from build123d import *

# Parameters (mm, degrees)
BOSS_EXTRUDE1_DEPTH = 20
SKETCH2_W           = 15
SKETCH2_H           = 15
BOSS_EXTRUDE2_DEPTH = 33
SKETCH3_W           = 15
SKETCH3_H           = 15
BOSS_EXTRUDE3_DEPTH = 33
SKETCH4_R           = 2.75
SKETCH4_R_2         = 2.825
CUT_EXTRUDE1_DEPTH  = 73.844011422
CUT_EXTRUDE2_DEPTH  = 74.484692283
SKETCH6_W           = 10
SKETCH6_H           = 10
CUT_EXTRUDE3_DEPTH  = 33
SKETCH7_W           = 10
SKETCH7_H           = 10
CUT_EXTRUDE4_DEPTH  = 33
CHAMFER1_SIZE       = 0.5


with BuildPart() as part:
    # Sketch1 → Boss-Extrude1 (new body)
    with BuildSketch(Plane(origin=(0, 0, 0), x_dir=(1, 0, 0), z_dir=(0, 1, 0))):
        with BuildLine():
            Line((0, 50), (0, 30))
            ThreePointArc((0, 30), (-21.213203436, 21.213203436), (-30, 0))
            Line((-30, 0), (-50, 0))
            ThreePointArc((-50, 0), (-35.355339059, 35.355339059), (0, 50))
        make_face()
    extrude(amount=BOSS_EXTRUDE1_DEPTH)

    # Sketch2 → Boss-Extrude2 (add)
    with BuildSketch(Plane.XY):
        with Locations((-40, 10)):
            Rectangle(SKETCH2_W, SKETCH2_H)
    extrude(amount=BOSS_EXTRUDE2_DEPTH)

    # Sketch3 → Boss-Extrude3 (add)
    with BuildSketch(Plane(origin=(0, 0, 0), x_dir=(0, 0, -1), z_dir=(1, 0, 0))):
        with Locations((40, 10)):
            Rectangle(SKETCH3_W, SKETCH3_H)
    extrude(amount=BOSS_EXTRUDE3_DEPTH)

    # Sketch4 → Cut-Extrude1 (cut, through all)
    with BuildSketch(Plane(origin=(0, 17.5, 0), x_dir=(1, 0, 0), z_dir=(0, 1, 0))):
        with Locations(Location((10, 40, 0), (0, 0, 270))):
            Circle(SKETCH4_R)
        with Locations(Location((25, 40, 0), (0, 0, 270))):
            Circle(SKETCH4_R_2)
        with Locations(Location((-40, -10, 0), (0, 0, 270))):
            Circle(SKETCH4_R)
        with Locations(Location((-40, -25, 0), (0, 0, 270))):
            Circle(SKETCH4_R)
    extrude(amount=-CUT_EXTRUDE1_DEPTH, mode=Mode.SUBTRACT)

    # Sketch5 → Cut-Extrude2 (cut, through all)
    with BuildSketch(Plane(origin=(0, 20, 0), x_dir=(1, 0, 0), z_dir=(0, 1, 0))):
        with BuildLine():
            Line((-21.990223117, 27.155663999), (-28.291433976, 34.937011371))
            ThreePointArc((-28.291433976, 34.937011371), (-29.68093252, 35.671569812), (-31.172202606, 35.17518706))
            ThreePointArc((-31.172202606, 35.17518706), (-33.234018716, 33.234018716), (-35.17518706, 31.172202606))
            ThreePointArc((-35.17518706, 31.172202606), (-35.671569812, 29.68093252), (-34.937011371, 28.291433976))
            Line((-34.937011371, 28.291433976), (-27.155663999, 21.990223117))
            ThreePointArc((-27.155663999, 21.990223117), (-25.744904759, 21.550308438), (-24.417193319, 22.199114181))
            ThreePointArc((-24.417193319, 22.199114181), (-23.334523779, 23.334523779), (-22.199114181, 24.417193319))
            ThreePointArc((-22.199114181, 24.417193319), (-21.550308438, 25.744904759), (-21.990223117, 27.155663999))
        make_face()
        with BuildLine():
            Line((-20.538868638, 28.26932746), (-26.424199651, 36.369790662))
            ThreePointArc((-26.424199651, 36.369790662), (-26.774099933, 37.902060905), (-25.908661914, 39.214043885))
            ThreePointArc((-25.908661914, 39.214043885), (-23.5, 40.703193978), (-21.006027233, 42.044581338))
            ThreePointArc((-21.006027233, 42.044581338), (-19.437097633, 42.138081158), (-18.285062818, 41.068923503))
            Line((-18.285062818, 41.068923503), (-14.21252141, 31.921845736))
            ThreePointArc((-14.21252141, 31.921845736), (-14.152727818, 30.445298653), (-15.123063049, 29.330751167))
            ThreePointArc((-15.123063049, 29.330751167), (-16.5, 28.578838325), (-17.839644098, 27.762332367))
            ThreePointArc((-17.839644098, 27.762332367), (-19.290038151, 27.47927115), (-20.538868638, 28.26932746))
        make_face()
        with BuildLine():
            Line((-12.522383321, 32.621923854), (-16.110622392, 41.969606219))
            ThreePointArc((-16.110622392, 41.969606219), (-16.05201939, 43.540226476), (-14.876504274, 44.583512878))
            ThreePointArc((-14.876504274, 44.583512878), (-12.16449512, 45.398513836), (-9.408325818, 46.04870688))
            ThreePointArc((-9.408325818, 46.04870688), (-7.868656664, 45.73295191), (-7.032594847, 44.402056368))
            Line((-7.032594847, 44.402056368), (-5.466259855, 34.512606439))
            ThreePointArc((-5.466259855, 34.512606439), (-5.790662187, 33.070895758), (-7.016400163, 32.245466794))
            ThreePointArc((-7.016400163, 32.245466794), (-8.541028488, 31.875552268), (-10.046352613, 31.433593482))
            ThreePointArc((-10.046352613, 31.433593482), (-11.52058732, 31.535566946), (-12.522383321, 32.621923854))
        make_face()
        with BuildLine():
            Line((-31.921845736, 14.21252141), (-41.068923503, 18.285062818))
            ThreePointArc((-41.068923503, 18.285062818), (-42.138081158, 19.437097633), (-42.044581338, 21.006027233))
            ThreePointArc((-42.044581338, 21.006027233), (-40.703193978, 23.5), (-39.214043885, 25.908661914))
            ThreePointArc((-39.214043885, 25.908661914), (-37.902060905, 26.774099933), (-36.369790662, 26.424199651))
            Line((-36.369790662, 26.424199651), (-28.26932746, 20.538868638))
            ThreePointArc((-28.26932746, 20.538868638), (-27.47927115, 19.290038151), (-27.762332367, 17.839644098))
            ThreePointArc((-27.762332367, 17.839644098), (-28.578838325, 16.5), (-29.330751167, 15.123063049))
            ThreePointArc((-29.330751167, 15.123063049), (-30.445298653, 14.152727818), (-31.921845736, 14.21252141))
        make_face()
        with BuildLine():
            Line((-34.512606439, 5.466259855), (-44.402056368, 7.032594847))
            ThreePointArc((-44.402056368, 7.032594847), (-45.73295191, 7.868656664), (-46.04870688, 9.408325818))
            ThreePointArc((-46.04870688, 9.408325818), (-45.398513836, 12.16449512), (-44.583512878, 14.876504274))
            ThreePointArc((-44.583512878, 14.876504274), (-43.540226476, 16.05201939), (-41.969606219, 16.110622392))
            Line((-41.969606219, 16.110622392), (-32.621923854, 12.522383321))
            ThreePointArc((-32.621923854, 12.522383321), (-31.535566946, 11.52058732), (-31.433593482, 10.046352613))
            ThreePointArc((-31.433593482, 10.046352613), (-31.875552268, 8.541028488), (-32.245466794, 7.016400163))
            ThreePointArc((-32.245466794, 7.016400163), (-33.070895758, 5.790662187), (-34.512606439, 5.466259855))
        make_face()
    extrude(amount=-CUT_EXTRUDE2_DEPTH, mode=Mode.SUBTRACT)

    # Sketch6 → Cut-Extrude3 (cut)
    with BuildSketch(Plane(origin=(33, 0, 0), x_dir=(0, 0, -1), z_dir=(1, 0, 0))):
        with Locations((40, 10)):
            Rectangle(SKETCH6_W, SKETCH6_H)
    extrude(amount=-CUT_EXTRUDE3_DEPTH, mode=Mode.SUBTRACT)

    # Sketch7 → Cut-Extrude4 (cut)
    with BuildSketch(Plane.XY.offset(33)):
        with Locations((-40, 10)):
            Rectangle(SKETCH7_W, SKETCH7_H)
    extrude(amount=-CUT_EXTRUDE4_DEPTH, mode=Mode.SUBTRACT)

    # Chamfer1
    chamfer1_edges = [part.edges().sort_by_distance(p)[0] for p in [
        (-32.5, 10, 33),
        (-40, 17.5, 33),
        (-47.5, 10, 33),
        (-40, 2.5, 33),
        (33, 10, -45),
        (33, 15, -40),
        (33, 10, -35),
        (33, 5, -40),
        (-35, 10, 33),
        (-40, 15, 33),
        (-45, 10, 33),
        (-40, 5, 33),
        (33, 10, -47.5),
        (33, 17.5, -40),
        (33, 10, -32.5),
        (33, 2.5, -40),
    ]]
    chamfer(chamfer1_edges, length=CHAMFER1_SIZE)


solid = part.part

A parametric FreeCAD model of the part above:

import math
import FreeCAD as App
import Part
import Sketcher
Q = App.Units.Quantity


def edges_at(feature, points):
    """Names of the edges that pass closest to the given points."""
    edges = feature.Shape.Edges
    near = lambda p: min(range(len(edges)), key=lambda i: edges[i].distToShape(Part.Vertex(*p))[0])
    return sorted({f"Edge{near(p) + 1}" for p in points})


def add_polygon(sketch, points):
    """Adds a closed chain of lines whose ends are joined by coincident constraints."""
    first, n = sketch.GeometryCount, len(points)
    for a, b in zip(points, points[1:] + points[:1]):
        sketch.addGeometry(Part.LineSegment(App.Vector(*a, 0), App.Vector(*b, 0)), False)
    for i in range(n):
        sketch.addConstraint(Sketcher.Constraint("Coincident", first + i, 2, first + (i + 1) % n, 1))

doc = App.newDocument("Part")
body = doc.addObject("PartDesign::Body", "Body")

# Sketch on XZ plane
sketch1 = doc.addObject("Sketcher::SketchObject", "Sketch")
body.addObject(sketch1)
sketch1.AttachmentSupport = (doc.XZ_Plane, [""])
sketch1.MapMode = "FlatFace"
sketch1.addGeometry(Part.LineSegment(App.Vector(0, -30, 0), App.Vector(0, -50, 0)), False)
sketch1.addGeometry(Part.ArcOfCircle(Part.Circle(App.Vector(0, 0, 0), App.Vector(0, 0, 1), 50), math.radians(-180), math.radians(-90)), False)
sketch1.addGeometry(Part.LineSegment(App.Vector(-50, 0, 0), App.Vector(-30, 0, 0)), False)
sketch1.addGeometry(Part.ArcOfCircle(Part.Circle(App.Vector(0, 0, 0), App.Vector(0, 0, 1), 30), math.radians(180), math.radians(270)), False)
sketch1.addConstraint(Sketcher.Constraint("Coincident", 0, 2, 1, 2))
sketch1.addConstraint(Sketcher.Constraint("Coincident", 1, 1, 2, 1))
sketch1.addConstraint(Sketcher.Constraint("Coincident", 2, 2, 3, 1))
sketch1.addConstraint(Sketcher.Constraint("Coincident", 3, 2, 0, 1))
sketch1.addConstraint(Sketcher.Constraint("Vertical", 0))
sketch1.addConstraint(Sketcher.Constraint("Horizontal", 2))
sketch1.addConstraint(Sketcher.Constraint("Coincident", 1, 3, -1, 1))
sketch1.addConstraint(Sketcher.Constraint("Coincident", 3, 3, -1, 1))
sketch1.addConstraint(Sketcher.Constraint("PointOnObject", 0, 2, -2))
sketch1.addConstraint(Sketcher.Constraint("PointOnObject", 1, 1, -1))
sketch1.addConstraint(Sketcher.Constraint("Radius", 1, Q("50 mm")))
sketch1.addConstraint(Sketcher.Constraint("Radius", 3, Q("30 mm")))
pad1 = doc.addObject("PartDesign::Pad", "Pad")
body.addObject(pad1)
pad1.Profile = sketch1
pad1.Length = 20
pad1.Reversed = True

# Sketch on XY plane
sketch2 = doc.addObject("Sketcher::SketchObject", "Sketch001")
body.addObject(sketch2)
sketch2.AttachmentSupport = (doc.XY_Plane, [""])
sketch2.MapMode = "FlatFace"
add_polygon(sketch2, [(-48, 18), (-48, 2), (-32, 2), (-32, 18)])  # lines 0-3
sketch2.addConstraint(Sketcher.Constraint("Vertical", 0))
sketch2.addConstraint(Sketcher.Constraint("Horizontal", 1))
sketch2.addConstraint(Sketcher.Constraint("Vertical", 2))
sketch2.addConstraint(Sketcher.Constraint("Horizontal", 3))
sketch2.addConstraint(Sketcher.Constraint("Equal", 3, 0))
sketch2.addConstraint(Sketcher.Constraint("DistanceX", 1, 1, 1, 2, Q("15 mm")))
sketch2.addConstraint(Sketcher.Constraint("DistanceX", 0, 2, -1, 1, Q("47.5 mm")))
sketch2.addConstraint(Sketcher.Constraint("DistanceY", -1, 1, 0, 2, Q("2.5 mm")))
pad2 = doc.addObject("PartDesign::Pad", "Pad001")
body.addObject(pad2)
pad2.Profile = sketch2
pad2.Length = 33

# Sketch on YZ plane
sketch3 = doc.addObject("Sketcher::SketchObject", "Sketch002")
body.addObject(sketch3)
sketch3.AttachmentSupport = (doc.YZ_Plane, [""])
sketch3.MapMode = "FlatFace"
add_polygon(sketch3, [(18, -32), (2, -32), (2, -48), (18, -48)])  # lines 0-3
sketch3.addConstraint(Sketcher.Constraint("Horizontal", 0))
sketch3.addConstraint(Sketcher.Constraint("Vertical", 1))
sketch3.addConstraint(Sketcher.Constraint("Horizontal", 2))
sketch3.addConstraint(Sketcher.Constraint("Vertical", 3))
sketch3.addConstraint(Sketcher.Constraint("Equal", 2, 1))
sketch3.addConstraint(Sketcher.Constraint("DistanceX", 0, 2, 0, 1, Q("15 mm")))
sketch3.addConstraint(Sketcher.Constraint("DistanceX", -1, 1, 0, 2, Q("2.5 mm")))
sketch3.addConstraint(Sketcher.Constraint("DistanceY", 0, 2, -1, 1, Q("32.5 mm")))
pad3 = doc.addObject("PartDesign::Pad", "Pad002")
body.addObject(pad3)
pad3.Profile = sketch3
pad3.Length = 33

# Sketch on XZ plane
sketch4 = doc.addObject("Sketcher::SketchObject", "Sketch003")
body.addObject(sketch4)
sketch4.AttachmentSupport = (doc.XZ_Plane, [""])
sketch4.MapMode = "FlatFace"
sketch4.AttachmentOffset = App.Placement(App.Vector(0, 0, -17.5), App.Rotation())
sketch4.addGeometry(Part.Circle(App.Vector(10, -40, 0), App.Vector(0, 0, 1), 2.8), False)
sketch4.addGeometry(Part.Circle(App.Vector(25, -40, 0), App.Vector(0, 0, 1), 2.8), False)
sketch4.addGeometry(Part.Circle(App.Vector(-40, 10, 0), App.Vector(0, 0, 1), 2.8), False)
sketch4.addGeometry(Part.Circle(App.Vector(-40, 25, 0), App.Vector(0, 0, 1), 2.8), False)
sketch4.addConstraint(Sketcher.Constraint("Equal", 0, 2))
sketch4.addConstraint(Sketcher.Constraint("Equal", 2, 3))
sketch4.addConstraint(Sketcher.Constraint("Horizontal", 0, 3, 1, 3))
sketch4.addConstraint(Sketcher.Constraint("Vertical", 2, 3, 3, 3))
sketch4.addConstraint(Sketcher.Constraint("Diameter", 0, Q("5.5 mm")))
sketch4.addConstraint(Sketcher.Constraint("Diameter", 1, Q("5.65 mm")))
sketch4.addConstraint(Sketcher.Constraint("DistanceX", -1, 1, 0, 3, Q("10 mm")))
sketch4.addConstraint(Sketcher.Constraint("DistanceY", 0, 3, -1, 1, Q("40 mm")))
sketch4.addConstraint(Sketcher.Constraint("DistanceX", -1, 1, 1, 3, Q("25 mm")))
sketch4.addConstraint(Sketcher.Constraint("DistanceX", 2, 3, -1, 1, Q("40 mm")))
sketch4.addConstraint(Sketcher.Constraint("DistanceY", -1, 1, 2, 3, Q("10 mm")))
sketch4.addConstraint(Sketcher.Constraint("DistanceY", -1, 1, 3, 3, Q("25 mm")))
pocket1 = doc.addObject("PartDesign::Pocket", "Pocket")
body.addObject(pocket1)
pocket1.Profile = sketch4
pocket1.Type = "ThroughAll"
pocket1.Reversed = True

# Sketch on XZ plane
sketch5 = doc.addObject("Sketcher::SketchObject", "Sketch004")
body.addObject(sketch5)
sketch5.AttachmentSupport = (doc.XZ_Plane, [""])
sketch5.MapMode = "FlatFace"
sketch5.AttachmentOffset = App.Placement(App.Vector(0, 0, -20), App.Rotation())
sketch5.addGeometry(Part.LineSegment(App.Vector(-22, -27.2, 0), App.Vector(-28.3, -34.9, 0)), False)
sketch5.addGeometry(Part.ArcOfCircle(Part.Circle(App.Vector(-29.8, -33.7, 0), App.Vector(0, 0, 1), 2), math.radians(-132), math.radians(-39)), False)
sketch5.addGeometry(Part.ArcOfCircle(Part.Circle(App.Vector(0, 0, 0), App.Vector(0, 0, 1), 47), math.radians(-138.45), math.radians(-131.55)), False)
sketch5.addGeometry(Part.ArcOfCircle(Part.Circle(App.Vector(-33.7, -29.8, 0), App.Vector(0, 0, 1), 2), math.radians(129), math.radians(222)), False)
sketch5.addGeometry(Part.LineSegment(App.Vector(-34.9, -28.3, 0), App.Vector(-27.2, -22, 0)), False)
sketch5.addGeometry(Part.ArcOfCircle(Part.Circle(App.Vector(-25.9, -23.5, 0), App.Vector(0, 0, 1), 2), math.radians(42), math.radians(129)), False)
sketch5.addGeometry(Part.ArcOfCircle(Part.Circle(App.Vector(0, 0, 0), App.Vector(0, 0, 1), 33), math.radians(-137.72), math.radians(-132.28)), False)
sketch5.addGeometry(Part.ArcOfCircle(Part.Circle(App.Vector(-23.5, -25.9, 0), App.Vector(0, 0, 1), 2), math.radians(-39), math.radians(48)), False)
sketch5.addGeometry(Part.LineSegment(App.Vector(-26.4, -36.4, 0), App.Vector(-20.5, -28.3, 0)), False)
sketch5.addGeometry(Part.ArcOfCircle(Part.Circle(App.Vector(-18.9, -29.4, 0), App.Vector(0, 0, 1), 2), math.radians(57), math.radians(144)), False)
sketch5.addGeometry(Part.ArcOfCircle(Part.Circle(App.Vector(0, 0, 0), App.Vector(0, 0, 1), 33), math.radians(-122.72), math.radians(-117.28)), False)
sketch5.addGeometry(Part.ArcOfCircle(Part.Circle(App.Vector(-16, -31.1, 0), App.Vector(0, 0, 1), 2), math.radians(-24), math.radians(63)), False)
sketch5.addGeometry(Part.LineSegment(App.Vector(-14.2, -31.9, 0), App.Vector(-18.3, -41.1, 0)), False)
sketch5.addGeometry(Part.ArcOfCircle(Part.Circle(App.Vector(-20.1, -40.3, 0), App.Vector(0, 0, 1), 2), math.radians(-117), math.radians(-24)), False)
sketch5.addGeometry(Part.ArcOfCircle(Part.Circle(App.Vector(0, 0, 0), App.Vector(0, 0, 1), 47), math.radians(-123.45), math.radians(-116.55)), False)
sketch5.addGeometry(Part.ArcOfCircle(Part.Circle(App.Vector(-24.8, -37.5, 0), App.Vector(0, 0, 1), 2), math.radians(144), math.radians(237)), False)
sketch5.addGeometry(Part.LineSegment(App.Vector(-16.1, -42, 0), App.Vector(-12.5, -32.6, 0)), False)
sketch5.addGeometry(Part.ArcOfCircle(Part.Circle(App.Vector(-10.7, -33.3, 0), App.Vector(0, 0, 1), 2), math.radians(72), math.radians(159)), False)
sketch5.addGeometry(Part.ArcOfCircle(Part.Circle(App.Vector(0, 0, 0), App.Vector(0, 0, 1), 33), math.radians(-107.72), math.radians(-102.28)), False)
sketch5.addGeometry(Part.ArcOfCircle(Part.Circle(App.Vector(-7.4, -34.2, 0), App.Vector(0, 0, 1), 2), math.radians(-9), math.radians(78)), False)
sketch5.addGeometry(Part.LineSegment(App.Vector(-5.5, -34.5, 0), App.Vector(-7, -44.4, 0)), False)
sketch5.addGeometry(Part.ArcOfCircle(Part.Circle(App.Vector(-9, -44.1, 0), App.Vector(0, 0, 1), 2), math.radians(-102), math.radians(-9)), False)
sketch5.addGeometry(Part.ArcOfCircle(Part.Circle(App.Vector(0, 0, 0), App.Vector(0, 0, 1), 47), math.radians(-108.45), math.radians(-101.55)), False)
sketch5.addGeometry(Part.ArcOfCircle(Part.Circle(App.Vector(-14.2, -42.7, 0), App.Vector(0, 0, 1), 2), math.radians(159), math.radians(252)), False)
sketch5.addGeometry(Part.LineSegment(App.Vector(-41.1, -18.3, 0), App.Vector(-31.9, -14.2, 0)), False)
sketch5.addGeometry(Part.ArcOfCircle(Part.Circle(App.Vector(-31.1, -16, 0), App.Vector(0, 0, 1), 2), math.radians(27), math.radians(114)), False)
sketch5.addGeometry(Part.ArcOfCircle(Part.Circle(App.Vector(0, 0, 0), App.Vector(0, 0, 1), 33), math.radians(-152.72), math.radians(-147.28)), False)
sketch5.addGeometry(Part.ArcOfCircle(Part.Circle(App.Vector(-29.4, -18.9, 0), App.Vector(0, 0, 1), 2), math.radians(-54), math.radians(33)), False)
sketch5.addGeometry(Part.LineSegment(App.Vector(-28.3, -20.5, 0), App.Vector(-36.4, -26.4, 0)), False)
sketch5.addGeometry(Part.ArcOfCircle(Part.Circle(App.Vector(-37.5, -24.8, 0), App.Vector(0, 0, 1), 2), math.radians(-147), math.radians(-54)), False)
sketch5.addGeometry(Part.ArcOfCircle(Part.Circle(App.Vector(0, 0, 0), App.Vector(0, 0, 1), 47), math.radians(-153.45), math.radians(-146.55)), False)
sketch5.addGeometry(Part.ArcOfCircle(Part.Circle(App.Vector(-40.3, -20.1, 0), App.Vector(0, 0, 1), 2), math.radians(114), math.radians(207)), False)
sketch5.addGeometry(Part.LineSegment(App.Vector(-44.4, -7, 0), App.Vector(-34.5, -5.5, 0)), False)
sketch5.addGeometry(Part.ArcOfCircle(Part.Circle(App.Vector(-34.2, -7.4, 0), App.Vector(0, 0, 1), 2), math.radians(12), math.radians(99)), False)
sketch5.addGeometry(Part.ArcOfCircle(Part.Circle(App.Vector(0, 0, 0), App.Vector(0, 0, 1), 33), math.radians(-167.72), math.radians(-162.28)), False)
sketch5.addGeometry(Part.ArcOfCircle(Part.Circle(App.Vector(-33.3, -10.7, 0), App.Vector(0, 0, 1), 2), math.radians(-69), math.radians(18)), False)
sketch5.addGeometry(Part.LineSegment(App.Vector(-32.6, -12.5, 0), App.Vector(-42, -16.1, 0)), False)
sketch5.addGeometry(Part.ArcOfCircle(Part.Circle(App.Vector(-42.7, -14.2, 0), App.Vector(0, 0, 1), 2), math.radians(-162), math.radians(-69)), False)
sketch5.addGeometry(Part.ArcOfCircle(Part.Circle(App.Vector(0, 0, 0), App.Vector(0, 0, 1), 47), math.radians(-168.45), math.radians(-161.55)), False)
sketch5.addGeometry(Part.ArcOfCircle(Part.Circle(App.Vector(-44.1, -9, 0), App.Vector(0, 0, 1), 2), math.radians(99), math.radians(192)), False)
sketch5.addConstraint(Sketcher.Constraint("Tangent", 0, 2, 1, 2))
sketch5.addConstraint(Sketcher.Constraint("Tangent", 1, 1, 2, 2))
sketch5.addConstraint(Sketcher.Constraint("Tangent", 2, 1, 3, 2))
sketch5.addConstraint(Sketcher.Constraint("Tangent", 3, 1, 4, 1))
sketch5.addConstraint(Sketcher.Constraint("Tangent", 4, 2, 5, 2))
sketch5.addConstraint(Sketcher.Constraint("Tangent", 5, 1, 6, 1))
sketch5.addConstraint(Sketcher.Constraint("Tangent", 6, 2, 7, 2))
sketch5.addConstraint(Sketcher.Constraint("Tangent", 7, 1, 0, 1))
sketch5.addConstraint(Sketcher.Constraint("Tangent", 8, 2, 9, 2))
sketch5.addConstraint(Sketcher.Constraint("Tangent", 9, 1, 10, 1))
sketch5.addConstraint(Sketcher.Constraint("Tangent", 10, 2, 11, 2))
sketch5.addConstraint(Sketcher.Constraint("Tangent", 11, 1, 12, 1))
sketch5.addConstraint(Sketcher.Constraint("Tangent", 12, 2, 13, 2))
sketch5.addConstraint(Sketcher.Constraint("Tangent", 13, 1, 14, 2))
sketch5.addConstraint(Sketcher.Constraint("Tangent", 14, 1, 15, 2))
sketch5.addConstraint(Sketcher.Constraint("Tangent", 15, 1, 8, 1))
sketch5.addConstraint(Sketcher.Constraint("Tangent", 16, 2, 17, 2))
sketch5.addConstraint(Sketcher.Constraint("Tangent", 17, 1, 18, 1))
sketch5.addConstraint(Sketcher.Constraint("Tangent", 18, 2, 19, 2))
sketch5.addConstraint(Sketcher.Constraint("Tangent", 19, 1, 20, 1))
sketch5.addConstraint(Sketcher.Constraint("Tangent", 20, 2, 21, 2))
sketch5.addConstraint(Sketcher.Constraint("Tangent", 21, 1, 22, 2))
sketch5.addConstraint(Sketcher.Constraint("Tangent", 22, 1, 23, 2))
sketch5.addConstraint(Sketcher.Constraint("Tangent", 23, 1, 16, 1))
sketch5.addConstraint(Sketcher.Constraint("Tangent", 24, 2, 25, 2))
sketch5.addConstraint(Sketcher.Constraint("Tangent", 25, 1, 26, 1))
sketch5.addConstraint(Sketcher.Constraint("Tangent", 26, 2, 27, 2))
sketch5.addConstraint(Sketcher.Constraint("Tangent", 27, 1, 28, 1))
sketch5.addConstraint(Sketcher.Constraint("Tangent", 28, 2, 29, 2))
sketch5.addConstraint(Sketcher.Constraint("Tangent", 29, 1, 30, 2))
sketch5.addConstraint(Sketcher.Constraint("Tangent", 30, 1, 31, 2))
sketch5.addConstraint(Sketcher.Constraint("Tangent", 31, 1, 24, 1))
sketch5.addConstraint(Sketcher.Constraint("Tangent", 32, 2, 33, 2))
sketch5.addConstraint(Sketcher.Constraint("Tangent", 33, 1, 34, 1))
sketch5.addConstraint(Sketcher.Constraint("Tangent", 34, 2, 35, 2))
sketch5.addConstraint(Sketcher.Constraint("Tangent", 35, 1, 36, 1))
sketch5.addConstraint(Sketcher.Constraint("Tangent", 36, 2, 37, 2))
sketch5.addConstraint(Sketcher.Constraint("Tangent", 37, 1, 38, 2))
sketch5.addConstraint(Sketcher.Constraint("Tangent", 38, 1, 39, 2))
sketch5.addConstraint(Sketcher.Constraint("Tangent", 39, 1, 32, 1))
sketch5.addConstraint(Sketcher.Constraint("Coincident", 2, 3, -1, 1))
sketch5.addConstraint(Sketcher.Constraint("Coincident", 6, 3, -1, 1))
sketch5.addConstraint(Sketcher.Constraint("Coincident", 10, 3, -1, 1))
sketch5.addConstraint(Sketcher.Constraint("Coincident", 14, 3, -1, 1))
sketch5.addConstraint(Sketcher.Constraint("Coincident", 18, 3, -1, 1))
sketch5.addConstraint(Sketcher.Constraint("Coincident", 22, 3, -1, 1))
sketch5.addConstraint(Sketcher.Constraint("Coincident", 26, 3, -1, 1))
sketch5.addConstraint(Sketcher.Constraint("Coincident", 30, 3, -1, 1))
sketch5.addConstraint(Sketcher.Constraint("Coincident", 34, 3, -1, 1))
sketch5.addConstraint(Sketcher.Constraint("Coincident", 38, 3, -1, 1))
sketch5.addConstraint(Sketcher.Constraint("Equal", 1, 3))
sketch5.addConstraint(Sketcher.Constraint("Equal", 3, 5))
sketch5.addConstraint(Sketcher.Constraint("Equal", 5, 7))
sketch5.addConstraint(Sketcher.Constraint("Equal", 7, 9))
sketch5.addConstraint(Sketcher.Constraint("Equal", 6, 10))
sketch5.addConstraint(Sketcher.Constraint("Equal", 9, 11))
sketch5.addConstraint(Sketcher.Constraint("Equal", 11, 13))
sketch5.addConstraint(Sketcher.Constraint("Equal", 2, 14))
sketch5.addConstraint(Sketcher.Constraint("Equal", 13, 15))
sketch5.addConstraint(Sketcher.Constraint("Equal", 15, 17))
sketch5.addConstraint(Sketcher.Constraint("Equal", 10, 18))
sketch5.addConstraint(Sketcher.Constraint("Equal", 17, 19))
sketch5.addConstraint(Sketcher.Constraint("Equal", 19, 21))
sketch5.addConstraint(Sketcher.Constraint("Equal", 14, 22))
sketch5.addConstraint(Sketcher.Constraint("Equal", 21, 23))
sketch5.addConstraint(Sketcher.Constraint("Equal", 23, 25))
sketch5.addConstraint(Sketcher.Constraint("Equal", 18, 26))
sketch5.addConstraint(Sketcher.Constraint("Equal", 25, 27))
sketch5.addConstraint(Sketcher.Constraint("Equal", 27, 29))
sketch5.addConstraint(Sketcher.Constraint("Equal", 22, 30))
sketch5.addConstraint(Sketcher.Constraint("Equal", 29, 31))
sketch5.addConstraint(Sketcher.Constraint("Equal", 31, 33))
sketch5.addConstraint(Sketcher.Constraint("Equal", 26, 34))
sketch5.addConstraint(Sketcher.Constraint("Equal", 33, 35))
sketch5.addConstraint(Sketcher.Constraint("Equal", 35, 37))
sketch5.addConstraint(Sketcher.Constraint("Equal", 30, 38))
sketch5.addConstraint(Sketcher.Constraint("Equal", 37, 39))
sketch5.addConstraint(Sketcher.Constraint("Equal", 0, 4))
sketch5.addConstraint(Sketcher.Constraint("Equal", 4, 8))
sketch5.addConstraint(Sketcher.Constraint("Equal", 8, 12))
sketch5.addConstraint(Sketcher.Constraint("Equal", 12, 16))
sketch5.addConstraint(Sketcher.Constraint("Equal", 16, 20))
sketch5.addConstraint(Sketcher.Constraint("Equal", 20, 24))
sketch5.addConstraint(Sketcher.Constraint("Equal", 24, 28))
sketch5.addConstraint(Sketcher.Constraint("Equal", 28, 32))
sketch5.addConstraint(Sketcher.Constraint("Equal", 32, 36))
sketch5.addConstraint(Sketcher.Constraint("Radius", 1, Q("2 mm")))
sketch5.addConstraint(Sketcher.Constraint("Radius", 2, Q("47 mm")))
sketch5.addConstraint(Sketcher.Constraint("Radius", 6, Q("33 mm")))
sketch5.addConstraint(Sketcher.Constraint("Angle", 0, Q("-129 deg")))
sketch5.addConstraint(Sketcher.Constraint("Angle", 4, Q("39 deg")))
sketch5.addConstraint(Sketcher.Constraint("Angle", 8, Q("54 deg")))
sketch5.addConstraint(Sketcher.Constraint("Angle", 12, Q("-114 deg")))
sketch5.addConstraint(Sketcher.Constraint("Angle", 16, Q("69 deg")))
sketch5.addConstraint(Sketcher.Constraint("Angle", 20, Q("-99 deg")))
sketch5.addConstraint(Sketcher.Constraint("Angle", 24, Q("24 deg")))
sketch5.addConstraint(Sketcher.Constraint("Angle", 28, Q("-144 deg")))
sketch5.addConstraint(Sketcher.Constraint("Angle", 32, Q("9 deg")))
sketch5.addConstraint(Sketcher.Constraint("Angle", 36, Q("-159 deg")))
sketch5.addConstraint(Sketcher.Constraint("DistanceX", 15, 1, -1, 1, Q("26.4242 mm")))
pocket2 = doc.addObject("PartDesign::Pocket", "Pocket001")
body.addObject(pocket2)
pocket2.Profile = sketch5
pocket2.Type = "ThroughAll"
pocket2.Reversed = True

# Sketch on YZ plane
sketch6 = doc.addObject("Sketcher::SketchObject", "Sketch005")
body.addObject(sketch6)
sketch6.AttachmentSupport = (doc.YZ_Plane, [""])
sketch6.MapMode = "FlatFace"
sketch6.AttachmentOffset = App.Placement(App.Vector(0, 0, 33), App.Rotation())
add_polygon(sketch6, [(15, -35), (5, -35), (5, -45), (15, -45)])  # lines 0-3
sketch6.addConstraint(Sketcher.Constraint("Horizontal", 0))
sketch6.addConstraint(Sketcher.Constraint("Vertical", 1))
sketch6.addConstraint(Sketcher.Constraint("Horizontal", 2))
sketch6.addConstraint(Sketcher.Constraint("Vertical", 3))
sketch6.addConstraint(Sketcher.Constraint("Equal", 2, 1))
sketch6.addConstraint(Sketcher.Constraint("DistanceX", 0, 2, 0, 1, Q("10 mm")))
sketch6.addConstraint(Sketcher.Constraint("DistanceX", -1, 1, 0, 2, Q("5 mm")))
sketch6.addConstraint(Sketcher.Constraint("DistanceY", 0, 2, -1, 1, Q("35 mm")))
pocket3 = doc.addObject("PartDesign::Pocket", "Pocket002")
body.addObject(pocket3)
pocket3.Profile = sketch6
pocket3.Length = 33

# Sketch on XY plane
sketch7 = doc.addObject("Sketcher::SketchObject", "Sketch006")
body.addObject(sketch7)
sketch7.AttachmentSupport = (doc.XY_Plane, [""])
sketch7.MapMode = "FlatFace"
sketch7.AttachmentOffset = App.Placement(App.Vector(0, 0, 33), App.Rotation())
add_polygon(sketch7, [(-45, 15), (-45, 5), (-35, 5), (-35, 15)])  # lines 0-3
sketch7.addConstraint(Sketcher.Constraint("Vertical", 0))
sketch7.addConstraint(Sketcher.Constraint("Horizontal", 1))
sketch7.addConstraint(Sketcher.Constraint("Vertical", 2))
sketch7.addConstraint(Sketcher.Constraint("Horizontal", 3))
sketch7.addConstraint(Sketcher.Constraint("Equal", 3, 0))
sketch7.addConstraint(Sketcher.Constraint("DistanceX", 1, 1, 1, 2, Q("10 mm")))
sketch7.addConstraint(Sketcher.Constraint("DistanceX", 0, 2, -1, 1, Q("45 mm")))
sketch7.addConstraint(Sketcher.Constraint("DistanceY", -1, 1, 0, 2, Q("5 mm")))
pocket4 = doc.addObject("PartDesign::Pocket", "Pocket003")
body.addObject(pocket4)
pocket4.Profile = sketch7
pocket4.Length = 33
doc.recompute()

chamfer = doc.addObject("PartDesign::Chamfer", "Chamfer")
body.addObject(chamfer)
chamfer.Base = (pocket4, edges_at(pocket4, [
    (-32.5, 10, 33),
    (-40, 17.5, 33),
    (-47.5, 10, 33),
    (-40, 2.5, 33),
    (33, 10, -45),
    (33, 15, -40),
    (33, 10, -35),
    (33, 5, -40),
    (-35, 10, 33),
    (-40, 15, 33),
    (-45, 10, 33),
    (-40, 5, 33),
    (33, 10, -47.5),
    (33, 17.5, -40),
    (33, 10, -32.5),
    (33, 2.5, -40),
]))
chamfer.Size = 0.5

doc.recompute()
